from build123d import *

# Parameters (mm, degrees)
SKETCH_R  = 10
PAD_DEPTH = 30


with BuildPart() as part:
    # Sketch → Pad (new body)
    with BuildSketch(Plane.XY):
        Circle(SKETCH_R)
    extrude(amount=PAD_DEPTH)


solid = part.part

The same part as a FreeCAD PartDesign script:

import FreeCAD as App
import Part
import Sketcher

doc = App.newDocument("Part")
body = doc.addObject("PartDesign::Body", "Body")

sketch1 = body.newObject("Sketcher::SketchObject", "Sketch")
sketch1.AttachmentSupport = (doc.getObject("XY_Plane"), [""])
sketch1.MapMode = "FlatFace"
sketch1.addGeometry(Part.Circle(App.Vector(0, 0, 0), App.Vector(0, 0, 1), 10), False)
sketch1.addConstraint([
    Sketcher.Constraint("Coincident", 0, 3, -1, 1),
    Sketcher.Constraint("Diameter", 0, 20.0),
])
pad1 = body.newObject("PartDesign::Pad", "Pad")
pad1.Profile = sketch1
pad1.Length = 30

doc.recompute()
